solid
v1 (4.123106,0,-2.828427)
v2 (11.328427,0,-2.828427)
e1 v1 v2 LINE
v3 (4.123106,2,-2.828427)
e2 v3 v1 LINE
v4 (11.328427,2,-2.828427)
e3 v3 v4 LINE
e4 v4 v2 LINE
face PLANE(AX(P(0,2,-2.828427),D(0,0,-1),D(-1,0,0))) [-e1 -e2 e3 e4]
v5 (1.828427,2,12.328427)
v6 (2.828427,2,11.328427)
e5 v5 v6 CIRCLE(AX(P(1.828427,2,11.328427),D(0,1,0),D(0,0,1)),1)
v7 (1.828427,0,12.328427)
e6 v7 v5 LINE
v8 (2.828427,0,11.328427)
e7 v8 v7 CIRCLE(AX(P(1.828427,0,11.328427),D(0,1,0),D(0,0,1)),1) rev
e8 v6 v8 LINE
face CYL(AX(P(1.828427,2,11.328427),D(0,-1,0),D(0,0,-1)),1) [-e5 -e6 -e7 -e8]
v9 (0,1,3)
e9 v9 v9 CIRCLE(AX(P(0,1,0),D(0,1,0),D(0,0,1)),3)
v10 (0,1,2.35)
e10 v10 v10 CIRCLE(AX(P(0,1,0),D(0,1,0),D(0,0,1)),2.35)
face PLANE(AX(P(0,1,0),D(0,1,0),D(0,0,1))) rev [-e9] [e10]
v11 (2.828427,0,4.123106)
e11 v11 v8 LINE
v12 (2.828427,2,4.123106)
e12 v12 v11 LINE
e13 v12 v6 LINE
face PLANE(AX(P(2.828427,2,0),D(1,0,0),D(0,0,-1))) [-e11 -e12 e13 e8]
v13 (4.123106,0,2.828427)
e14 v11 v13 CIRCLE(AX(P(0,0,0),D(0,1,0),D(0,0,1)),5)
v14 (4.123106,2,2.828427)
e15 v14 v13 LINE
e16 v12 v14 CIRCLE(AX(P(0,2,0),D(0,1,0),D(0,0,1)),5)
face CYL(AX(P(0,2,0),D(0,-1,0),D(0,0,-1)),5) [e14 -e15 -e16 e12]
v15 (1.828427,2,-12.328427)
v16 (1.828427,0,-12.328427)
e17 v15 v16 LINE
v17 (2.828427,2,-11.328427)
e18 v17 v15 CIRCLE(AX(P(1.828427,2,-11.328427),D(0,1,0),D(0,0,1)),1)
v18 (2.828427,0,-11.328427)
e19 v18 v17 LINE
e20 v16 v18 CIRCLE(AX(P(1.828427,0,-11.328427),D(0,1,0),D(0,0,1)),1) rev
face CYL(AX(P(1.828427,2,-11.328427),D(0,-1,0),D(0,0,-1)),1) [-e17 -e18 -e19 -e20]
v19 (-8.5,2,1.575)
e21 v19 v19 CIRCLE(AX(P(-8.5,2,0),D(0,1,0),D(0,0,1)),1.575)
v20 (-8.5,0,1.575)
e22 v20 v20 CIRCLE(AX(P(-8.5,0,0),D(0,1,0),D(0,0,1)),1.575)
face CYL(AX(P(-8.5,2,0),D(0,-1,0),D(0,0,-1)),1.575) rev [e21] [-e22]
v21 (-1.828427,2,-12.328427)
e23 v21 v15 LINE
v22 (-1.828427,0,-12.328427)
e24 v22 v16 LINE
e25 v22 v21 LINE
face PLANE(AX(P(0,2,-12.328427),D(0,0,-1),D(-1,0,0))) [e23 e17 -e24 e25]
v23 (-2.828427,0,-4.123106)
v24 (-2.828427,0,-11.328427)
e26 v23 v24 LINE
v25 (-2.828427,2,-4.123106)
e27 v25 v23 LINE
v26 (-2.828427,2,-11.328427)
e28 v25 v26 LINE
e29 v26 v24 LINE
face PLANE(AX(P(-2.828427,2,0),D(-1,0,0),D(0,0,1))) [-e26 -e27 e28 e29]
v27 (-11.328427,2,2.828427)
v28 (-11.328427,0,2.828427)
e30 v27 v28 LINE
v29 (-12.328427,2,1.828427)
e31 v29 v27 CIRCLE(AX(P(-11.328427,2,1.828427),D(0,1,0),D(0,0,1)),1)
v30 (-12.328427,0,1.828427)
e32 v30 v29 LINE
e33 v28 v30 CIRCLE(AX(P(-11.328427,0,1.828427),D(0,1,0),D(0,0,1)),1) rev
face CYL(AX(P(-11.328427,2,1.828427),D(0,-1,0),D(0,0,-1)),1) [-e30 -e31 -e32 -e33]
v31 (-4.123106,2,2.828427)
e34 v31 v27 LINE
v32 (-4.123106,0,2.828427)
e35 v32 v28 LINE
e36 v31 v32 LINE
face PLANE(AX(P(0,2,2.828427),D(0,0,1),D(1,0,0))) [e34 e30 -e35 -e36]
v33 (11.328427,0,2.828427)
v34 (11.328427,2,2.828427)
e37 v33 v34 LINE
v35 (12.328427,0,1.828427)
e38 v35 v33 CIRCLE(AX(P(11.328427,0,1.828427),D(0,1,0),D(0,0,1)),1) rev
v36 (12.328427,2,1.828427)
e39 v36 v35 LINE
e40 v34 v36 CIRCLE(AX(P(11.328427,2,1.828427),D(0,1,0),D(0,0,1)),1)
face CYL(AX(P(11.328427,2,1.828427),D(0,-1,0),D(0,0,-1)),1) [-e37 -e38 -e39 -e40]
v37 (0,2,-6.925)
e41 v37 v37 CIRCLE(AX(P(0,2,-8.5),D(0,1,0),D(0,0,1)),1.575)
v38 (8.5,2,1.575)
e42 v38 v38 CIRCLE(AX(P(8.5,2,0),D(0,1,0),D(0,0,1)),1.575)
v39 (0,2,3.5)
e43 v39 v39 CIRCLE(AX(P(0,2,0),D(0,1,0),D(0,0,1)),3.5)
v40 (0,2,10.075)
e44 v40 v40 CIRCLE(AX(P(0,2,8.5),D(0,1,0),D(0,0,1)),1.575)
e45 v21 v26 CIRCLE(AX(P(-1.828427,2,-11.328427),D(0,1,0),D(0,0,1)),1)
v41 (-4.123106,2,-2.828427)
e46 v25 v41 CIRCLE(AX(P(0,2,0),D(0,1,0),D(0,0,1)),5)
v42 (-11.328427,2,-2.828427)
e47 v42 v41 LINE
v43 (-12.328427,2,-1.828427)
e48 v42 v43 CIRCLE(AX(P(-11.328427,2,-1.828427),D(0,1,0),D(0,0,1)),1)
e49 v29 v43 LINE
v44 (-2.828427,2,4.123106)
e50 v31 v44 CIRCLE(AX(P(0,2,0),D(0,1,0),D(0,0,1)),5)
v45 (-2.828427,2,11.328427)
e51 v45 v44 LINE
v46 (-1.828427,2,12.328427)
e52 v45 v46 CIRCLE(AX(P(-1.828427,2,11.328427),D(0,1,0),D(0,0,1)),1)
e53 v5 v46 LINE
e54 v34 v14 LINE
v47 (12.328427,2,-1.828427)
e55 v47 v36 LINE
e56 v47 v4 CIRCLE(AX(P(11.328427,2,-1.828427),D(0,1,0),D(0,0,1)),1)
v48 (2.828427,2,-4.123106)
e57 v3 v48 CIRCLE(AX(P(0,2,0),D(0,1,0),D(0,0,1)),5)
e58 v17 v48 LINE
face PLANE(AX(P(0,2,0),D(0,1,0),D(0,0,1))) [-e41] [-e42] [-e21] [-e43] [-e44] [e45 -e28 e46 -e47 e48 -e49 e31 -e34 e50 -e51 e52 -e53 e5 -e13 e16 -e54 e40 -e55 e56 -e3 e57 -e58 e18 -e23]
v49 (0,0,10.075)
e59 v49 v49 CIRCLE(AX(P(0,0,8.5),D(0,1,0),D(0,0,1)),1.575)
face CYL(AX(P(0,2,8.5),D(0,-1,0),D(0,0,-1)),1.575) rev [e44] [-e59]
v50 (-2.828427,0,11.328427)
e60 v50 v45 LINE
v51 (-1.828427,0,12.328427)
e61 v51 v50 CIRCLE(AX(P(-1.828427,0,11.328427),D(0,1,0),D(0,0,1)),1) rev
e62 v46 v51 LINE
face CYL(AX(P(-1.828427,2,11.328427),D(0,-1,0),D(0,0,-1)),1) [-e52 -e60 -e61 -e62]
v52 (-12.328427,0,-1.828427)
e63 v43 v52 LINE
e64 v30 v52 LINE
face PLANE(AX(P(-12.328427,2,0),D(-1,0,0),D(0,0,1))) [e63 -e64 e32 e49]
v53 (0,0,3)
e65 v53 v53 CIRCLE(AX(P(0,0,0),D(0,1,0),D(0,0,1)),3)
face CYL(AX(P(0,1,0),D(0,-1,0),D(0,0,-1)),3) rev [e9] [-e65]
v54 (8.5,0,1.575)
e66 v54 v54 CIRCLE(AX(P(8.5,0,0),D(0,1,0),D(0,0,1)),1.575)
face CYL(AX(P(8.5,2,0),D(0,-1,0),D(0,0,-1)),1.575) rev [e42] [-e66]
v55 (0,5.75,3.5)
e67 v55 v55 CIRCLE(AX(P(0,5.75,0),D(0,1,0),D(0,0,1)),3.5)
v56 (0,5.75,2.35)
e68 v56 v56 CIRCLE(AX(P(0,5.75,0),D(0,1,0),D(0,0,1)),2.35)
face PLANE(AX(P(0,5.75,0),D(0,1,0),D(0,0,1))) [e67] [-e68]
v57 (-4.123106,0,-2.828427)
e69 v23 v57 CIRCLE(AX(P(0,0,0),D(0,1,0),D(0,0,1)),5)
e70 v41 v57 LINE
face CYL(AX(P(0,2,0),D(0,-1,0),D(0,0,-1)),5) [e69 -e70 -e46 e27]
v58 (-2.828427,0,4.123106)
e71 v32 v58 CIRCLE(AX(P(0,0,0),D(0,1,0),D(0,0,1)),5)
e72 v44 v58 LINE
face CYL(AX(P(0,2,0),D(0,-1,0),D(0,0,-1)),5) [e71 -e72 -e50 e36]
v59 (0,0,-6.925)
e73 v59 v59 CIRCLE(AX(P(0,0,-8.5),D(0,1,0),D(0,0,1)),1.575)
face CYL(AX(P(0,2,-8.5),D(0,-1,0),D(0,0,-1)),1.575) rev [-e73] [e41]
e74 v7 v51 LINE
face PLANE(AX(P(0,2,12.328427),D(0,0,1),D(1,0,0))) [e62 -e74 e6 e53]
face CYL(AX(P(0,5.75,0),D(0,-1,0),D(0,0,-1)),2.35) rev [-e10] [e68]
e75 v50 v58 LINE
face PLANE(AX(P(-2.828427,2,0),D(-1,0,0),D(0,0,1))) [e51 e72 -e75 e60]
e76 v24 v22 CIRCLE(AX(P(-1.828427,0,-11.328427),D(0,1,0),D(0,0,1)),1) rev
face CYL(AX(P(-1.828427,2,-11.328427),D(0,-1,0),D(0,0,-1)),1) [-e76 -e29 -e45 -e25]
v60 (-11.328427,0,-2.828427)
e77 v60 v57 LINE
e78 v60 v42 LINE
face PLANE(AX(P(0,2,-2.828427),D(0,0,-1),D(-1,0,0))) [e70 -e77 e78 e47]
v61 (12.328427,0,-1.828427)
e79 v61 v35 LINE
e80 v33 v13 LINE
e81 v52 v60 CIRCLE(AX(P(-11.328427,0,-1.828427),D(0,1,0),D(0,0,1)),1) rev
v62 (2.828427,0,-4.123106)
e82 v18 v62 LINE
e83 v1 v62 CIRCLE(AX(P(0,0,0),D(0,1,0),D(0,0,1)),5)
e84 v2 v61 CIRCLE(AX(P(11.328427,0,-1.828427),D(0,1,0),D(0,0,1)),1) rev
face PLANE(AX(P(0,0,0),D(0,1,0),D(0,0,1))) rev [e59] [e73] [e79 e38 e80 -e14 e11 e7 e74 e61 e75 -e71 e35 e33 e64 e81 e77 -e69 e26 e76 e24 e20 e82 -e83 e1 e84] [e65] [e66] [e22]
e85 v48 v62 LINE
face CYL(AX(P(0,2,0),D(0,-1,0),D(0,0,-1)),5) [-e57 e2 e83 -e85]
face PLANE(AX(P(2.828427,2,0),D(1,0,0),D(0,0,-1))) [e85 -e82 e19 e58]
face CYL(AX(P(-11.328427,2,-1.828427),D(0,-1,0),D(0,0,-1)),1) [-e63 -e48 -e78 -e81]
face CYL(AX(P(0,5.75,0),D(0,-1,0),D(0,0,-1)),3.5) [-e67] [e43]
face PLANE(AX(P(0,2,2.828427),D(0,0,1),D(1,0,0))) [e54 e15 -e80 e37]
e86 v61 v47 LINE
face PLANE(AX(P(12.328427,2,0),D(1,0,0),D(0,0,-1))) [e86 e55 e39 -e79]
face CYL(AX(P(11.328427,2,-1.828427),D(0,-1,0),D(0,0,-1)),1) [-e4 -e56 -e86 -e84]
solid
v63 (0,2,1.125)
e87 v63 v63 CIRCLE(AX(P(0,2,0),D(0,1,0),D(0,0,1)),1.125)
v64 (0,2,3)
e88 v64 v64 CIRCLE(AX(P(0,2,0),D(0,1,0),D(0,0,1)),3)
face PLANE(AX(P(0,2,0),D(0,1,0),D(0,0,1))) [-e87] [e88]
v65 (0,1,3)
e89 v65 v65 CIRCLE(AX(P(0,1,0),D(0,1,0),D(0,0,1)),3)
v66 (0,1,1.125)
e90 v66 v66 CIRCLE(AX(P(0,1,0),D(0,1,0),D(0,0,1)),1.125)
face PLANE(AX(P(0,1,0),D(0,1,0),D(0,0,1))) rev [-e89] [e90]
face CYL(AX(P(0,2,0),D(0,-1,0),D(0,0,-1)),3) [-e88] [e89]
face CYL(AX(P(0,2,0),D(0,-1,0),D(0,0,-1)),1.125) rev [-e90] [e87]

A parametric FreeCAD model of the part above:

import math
import FreeCAD as App
import Part
import Sketcher
from FreeCAD import Vector


def edges_at(feature, points):
    """Names of the edges that pass closest to the given points."""
    edges = feature.Shape.Edges
    near = lambda p: min(range(len(edges)), key=lambda i: edges[i].distToShape(Part.Vertex(*p))[0])
    return sorted({f"Edge{near(p) + 1}" for p in points})

doc = App.newDocument("Part")
body = doc.addObject("PartDesign::Body", "Body")

# Sketch on XZ plane
sketch1 = doc.addObject("Sketcher::SketchObject", "Sketch")
body.addObject(sketch1)
sketch1.AttachmentSupport = (doc.XZ_Plane, [""])
sketch1.MapMode = "FlatFace"
sketch1.addGeometry(Part.ArcOfCircle(Part.Circle(Vector(0, 0, 0), Vector(0, 0, 1), 5), math.radians(-146), math.radians(-124)), False)
sketch1.addGeometry(Part.LineSegment(Vector(-4.1, -2.8, 0), Vector(-12.3, -2.8, 0)), False)
sketch1.addGeometry(Part.LineSegment(Vector(-12.3, -2.8, 0), Vector(-12.3, 2.8, 0)), False)
sketch1.addGeometry(Part.LineSegment(Vector(-12.3, 2.8, 0), Vector(-4.1, 2.8, 0)), False)
sketch1.addGeometry(Part.ArcOfCircle(Part.Circle(Vector(0, 0, 0), Vector(0, 0, 1), 5), math.radians(124), math.radians(146)), False)
sketch1.addGeometry(Part.LineSegment(Vector(-2.8, 4.1, 0), Vector(-2.8, 12.3, 0)), False)
sketch1.addGeometry(Part.LineSegment(Vector(-2.8, 12.3, 0), Vector(2.8, 12.3, 0)), False)
sketch1.addGeometry(Part.LineSegment(Vector(2.8, 12.3, 0), Vector(2.8, 4.1, 0)), False)
sketch1.addGeometry(Part.ArcOfCircle(Part.Circle(Vector(0, 0, 0), Vector(0, 0, 1), 5), math.radians(34), math.radians(56)), False)
sketch1.addGeometry(Part.LineSegment(Vector(4.1, 2.8, 0), Vector(12.3, 2.8, 0)), False)
sketch1.addGeometry(Part.LineSegment(Vector(12.3, 2.8, 0), Vector(12.3, -2.8, 0)), False)
sketch1.addGeometry(Part.LineSegment(Vector(12.3, -2.8, 0), Vector(4.1, -2.8, 0)), False)
sketch1.addGeometry(Part.ArcOfCircle(Part.Circle(Vector(0, 0, 0), Vector(0, 0, 1), 5), math.radians(-56), math.radians(-34)), False)
sketch1.addGeometry(Part.LineSegment(Vector(2.8, -4.1, 0), Vector(2.8, -12.3, 0)), False)
sketch1.addGeometry(Part.LineSegment(Vector(2.8, -12.3, 0), Vector(-2.8, -12.3, 0)), False)
sketch1.addGeometry(Part.LineSegment(Vector(-2.8, -12.3, 0), Vector(-2.8, -4.1, 0)), False)
sketch1.addGeometry(Part.Circle(Vector(0, 8.5, 0), Vector(0, 0, 1), 1.6), False)
sketch1.addGeometry(Part.Circle(Vector(-8.5, 0, 0), Vector(0, 0, 1), 1.6), False)
sketch1.addGeometry(Part.Circle(Vector(0, 0, 0), Vector(0, 0, 1), 3.5), False)
sketch1.addGeometry(Part.Circle(Vector(8.5, 0, 0), Vector(0, 0, 1), 1.6), False)
sketch1.addGeometry(Part.Circle(Vector(0, -8.5, 0), Vector(0, 0, 1), 1.6), False)
sketch1.addConstraint(Sketcher.Constraint("Coincident", 0, 1, 1, 1))
sketch1.addConstraint(Sketcher.Constraint("Coincident", 1, 2, 2, 1))
sketch1.addConstraint(Sketcher.Constraint("Coincident", 2, 2, 3, 1))
sketch1.addConstraint(Sketcher.Constraint("Coincident", 3, 2, 4, 2))
sketch1.addConstraint(Sketcher.Constraint("Coincident", 4, 1, 5, 1))
sketch1.addConstraint(Sketcher.Constraint("Coincident", 5, 2, 6, 1))
sketch1.addConstraint(Sketcher.Constraint("Coincident", 6, 2, 7, 1))
sketch1.addConstraint(Sketcher.Constraint("Coincident", 7, 2, 8, 2))
sketch1.addConstraint(Sketcher.Constraint("Coincident", 8, 1, 9, 1))
sketch1.addConstraint(Sketcher.Constraint("Coincident", 9, 2, 10, 1))
sketch1.addConstraint(Sketcher.Constraint("Coincident", 10, 2, 11, 1))
sketch1.addConstraint(Sketcher.Constraint("Coincident", 11, 2, 12, 2))
sketch1.addConstraint(Sketcher.Constraint("Coincident", 12, 1, 13, 1))
sketch1.addConstraint(Sketcher.Constraint("Coincident", 13, 2, 14, 1))
sketch1.addConstraint(Sketcher.Constraint("Coincident", 14, 2, 15, 1))
sketch1.addConstraint(Sketcher.Constraint("Coincident", 15, 2, 0, 2))
sketch1.addConstraint(Sketcher.Constraint("Horizontal", 1))
sketch1.addConstraint(Sketcher.Constraint("Vertical", 2))
sketch1.addConstraint(Sketcher.Constraint("Horizontal", 3))
sketch1.addConstraint(Sketcher.Constraint("Vertical", 5))
sketch1.addConstraint(Sketcher.Constraint("Horizontal", 6))
sketch1.addConstraint(Sketcher.Constraint("Vertical", 7))
sketch1.addConstraint(Sketcher.Constraint("Horizontal", 9))
sketch1.addConstraint(Sketcher.Constraint("Vertical", 10))
sketch1.addConstraint(Sketcher.Constraint("Horizontal", 11))
sketch1.addConstraint(Sketcher.Constraint("Vertical", 13))
sketch1.addConstraint(Sketcher.Constraint("Horizontal", 14))
sketch1.addConstraint(Sketcher.Constraint("Vertical", 15))
sketch1.addConstraint(Sketcher.Constraint("Coincident", 0, 3, -1, 1))
sketch1.addConstraint(Sketcher.Constraint("Coincident", 4, 3, -1, 1))
sketch1.addConstraint(Sketcher.Constraint("Coincident", 8, 3, -1, 1))
sketch1.addConstraint(Sketcher.Constraint("Coincident", 12, 3, -1, 1))
sketch1.addConstraint(Sketcher.Constraint("Coincident", 18, 3, -1, 1))
sketch1.addConstraint(Sketcher.Constraint("Equal", 0, 4))
sketch1.addConstraint(Sketcher.Constraint("Equal", 4, 8))
sketch1.addConstraint(Sketcher.Constraint("Equal", 8, 12))
sketch1.addConstraint(Sketcher.Constraint("Equal", 16, 17))
sketch1.addConstraint(Sketcher.Constraint("Equal", 17, 19))
sketch1.addConstraint(Sketcher.Constraint("Equal", 19, 20))
sketch1.addConstraint(Sketcher.Constraint("Symmetric", 17, 3, 19, 3, -1, 1))
sketch1.addConstraint(Sketcher.Constraint("Symmetric", 16, 3, 20, 3, -1, 1))
sketch1.addConstraint(Sketcher.Constraint("Symmetric", 1, 2, 9, 2, -1, 1))
sketch1.addConstraint(Sketcher.Constraint("Symmetric", 5, 2, 13, 2, -1, 1))
sketch1.addConstraint(Sketcher.Constraint("PointOnObject", 16, 3, -2))
sketch1.addConstraint(Sketcher.Constraint("PointOnObject", 17, 3, -1))
sketch1.addConstraint(Sketcher.Constraint("Horizontal", 4, 1, 7, 2))
sketch1.addConstraint(Sketcher.Constraint("Horizontal", 3, 2, 8, 1))
sketch1.addConstraint(Sketcher.Constraint("Horizontal", 1, 2, 10, 2))
sketch1.addConstraint(Sketcher.Constraint("Horizontal", 12, 1, 15, 2))
sketch1.addConstraint(Sketcher.Constraint("Equal", 14, 2))
sketch1.addConstraint(Sketcher.Constraint("Equal", 11, 5))
sketch1.addConstraint(Sketcher.Constraint("Diameter", 18, 7.0))
sketch1.addConstraint(Sketcher.Constraint("Radius", 0, 5.0))
sketch1.addConstraint(Sketcher.Constraint("Diameter", 16, 3.15))
sketch1.addConstraint(Sketcher.Constraint("DistanceY", -1, 1, 16, 3, 8.5))
sketch1.addConstraint(Sketcher.Constraint("DistanceX", 17, 3, -1, 1, 8.5))
sketch1.addConstraint(Sketcher.Constraint("DistanceY", 3, 2, 5, 2, 9.5))
sketch1.addConstraint(Sketcher.Constraint("DistanceX", 1, 2, 1, 1, 8.205321))
pad1 = doc.addObject("PartDesign::Pad", "Pad")
body.addObject(pad1)
pad1.Profile = sketch1
pad1.Length = 2
pad1.Reversed = True

# Sketch on XZ plane
sketch2 = doc.addObject("Sketcher::SketchObject", "Sketch001")
body.addObject(sketch2)
sketch2.AttachmentSupport = (doc.XZ_Plane, [""])
sketch2.MapMode = "FlatFace"
sketch2.addGeometry(Part.Circle(Vector(0, 0, 0), Vector(0, 0, 1), 3.5), False)
sketch2.addGeometry(Part.Circle(Vector(0, 0, 0), Vector(0, 0, 1), 2.4), False)
sketch2.addConstraint(Sketcher.Constraint("Coincident", 0, 3, -1, 1))
sketch2.addConstraint(Sketcher.Constraint("Coincident", 1, 3, -1, 1))
sketch2.addConstraint(Sketcher.Constraint("Diameter", 0, 7.0))
sketch2.addConstraint(Sketcher.Constraint("Diameter", 1, 4.7))
pad2 = doc.addObject("PartDesign::Pad", "Pad001")
body.addObject(pad2)
pad2.Profile = sketch2
pad2.Length = 5.75
pad2.Reversed = True
doc.recompute()

fillet = doc.addObject("PartDesign::Fillet", "Fillet")
body.addObject(fillet)
fillet.Base = (pad2, edges_at(pad2, [
    (-2.828, 1, -12.328),
    (2.828, 1, -12.328),
    (12.328, 1, -2.828),
    (12.328, 1, 2.828),
    (2.828, 1, 12.328),
    (-2.828, 1, 12.328),
    (-12.328, 1, 2.828),
    (-12.328, 1, -2.828),
]))
fillet.Radius = 1
body2 = doc.addObject("PartDesign::Body", "Body001")

# Sketch on XZ plane
sketch3 = doc.addObject("Sketcher::SketchObject", "Sketch002")
body2.addObject(sketch3)
sketch3.AttachmentSupport = (doc.getObject("XZ_Plane001"), [""])
sketch3.MapMode = "FlatFace"
sketch3.addGeometry(Part.Circle(Vector(0, 0, 0), Vector(0, 0, 1), 3), False)
sketch3.addGeometry(Part.Circle(Vector(0, 0, 0), Vector(0, 0, 1), 1.1), False)
sketch3.addConstraint(Sketcher.Constraint("Coincident", 0, 3, -1, 1))
sketch3.addConstraint(Sketcher.Constraint("Coincident", 1, 3, -1, 1))
sketch3.addConstraint(Sketcher.Constraint("Diameter", 0, 6.0))
sketch3.addConstraint(Sketcher.Constraint("Diameter", 1, 2.25))
pad3 = doc.addObject("PartDesign::Pad", "Pad002")
body2.addObject(pad3)
pad3.Profile = sketch3
pad3.Length = 2
pad3.Reversed = True
body3 = doc.addObject("PartDesign::Body", "Body002")

# Sketch on XZ plane
sketch4 = doc.addObject("Sketcher::SketchObject", "Sketch003")
body3.addObject(sketch4)
sketch4.AttachmentSupport = (doc.getObject("XZ_Plane002"), [""])
sketch4.MapMode = "FlatFace"
sketch4.addGeometry(Part.ArcOfCircle(Part.Circle(Vector(0, 0, 0), Vector(0, 0, 1), 3), math.radians(-90), math.radians(-45)), False)
sketch4.addGeometry(Part.ArcOfCircle(Part.Circle(Vector(0, 0, 0), Vector(0, 0, 1), 3), math.radians(-135), math.radians(-90)), False)
sketch4.addGeometry(Part.ArcOfCircle(Part.Circle(Vector(0, 0, 0), Vector(0, 0, 1), 3), math.radians(135), math.radians(225)), False)
sketch4.addGeometry(Part.ArcOfCircle(Part.Circle(Vector(0, 0, 0), Vector(0, 0, 1), 3), math.radians(45), math.radians(135)), False)
sketch4.addGeometry(Part.ArcOfCircle(Part.Circle(Vector(0, 0, 0), Vector(0, 0, 1), 3), math.radians(0), math.radians(45)), False)
sketch4.addGeometry(Part.ArcOfCircle(Part.Circle(Vector(0, 0, 0), Vector(0, 0, 1), 3), math.radians(-45), math.radians(0)), False)
sketch4.addGeometry(Part.ArcOfCircle(Part.Circle(Vector(0, 0, 0), Vector(0, 0, 1), 1.1), math.radians(-135), math.radians(-90)), False)
sketch4.addGeometry(Part.ArcOfCircle(Part.Circle(Vector(0, 0, 0), Vector(0, 0, 1), 1.1), math.radians(-90), math.radians(-45)), False)
sketch4.addGeometry(Part.ArcOfCircle(Part.Circle(Vector(0, 0, 0), Vector(0, 0, 1), 1.1), math.radians(-45), math.radians(0)), False)
sketch4.addGeometry(Part.ArcOfCircle(Part.Circle(Vector(0, 0, 0), Vector(0, 0, 1), 1.1), math.radians(0), math.radians(45)), False)
sketch4.addGeometry(Part.ArcOfCircle(Part.Circle(Vector(0, 0, 0), Vector(0, 0, 1), 1.1), math.radians(45), math.radians(135)), False)
sketch4.addGeometry(Part.ArcOfCircle(Part.Circle(Vector(0, 0, 0), Vector(0, 0, 1), 1.1), math.radians(135), math.radians(225)), False)
sketch4.addConstraint(Sketcher.Constraint("Tangent", 0, 1, 1, 2))
sketch4.addConstraint(Sketcher.Constraint("Tangent", 1, 1, 2, 2))
sketch4.addConstraint(Sketcher.Constraint("Tangent", 2, 1, 3, 2))
sketch4.addConstraint(Sketcher.Constraint("Tangent", 3, 1, 4, 2))
sketch4.addConstraint(Sketcher.Constraint("Tangent", 4, 1, 5, 2))
sketch4.addConstraint(Sketcher.Constraint("Tangent", 5, 1, 0, 2))
sketch4.addConstraint(Sketcher.Constraint("Tangent", 6, 2, 7, 1))
sketch4.addConstraint(Sketcher.Constraint("Tangent", 7, 2, 8, 1))
sketch4.addConstraint(Sketcher.Constraint("Tangent", 8, 2, 9, 1))
sketch4.addConstraint(Sketcher.Constraint("Tangent", 9, 2, 10, 1))
sketch4.addConstraint(Sketcher.Constraint("Tangent", 10, 2, 11, 1))
sketch4.addConstraint(Sketcher.Constraint("Tangent", 11, 2, 6, 1))
sketch4.addConstraint(Sketcher.Constraint("Coincident", 0, 3, -1, 1))
sketch4.addConstraint(Sketcher.Constraint("Coincident", 2, 3, -1, 1))
sketch4.addConstraint(Sketcher.Constraint("Coincident", 6, 3, -1, 1))
sketch4.addConstraint(Sketcher.Constraint("Coincident", 8, 3, -1, 1))
sketch4.addConstraint(Sketcher.Constraint("Equal", 2, 3))
sketch4.addConstraint(Sketcher.Constraint("Equal", 8, 9))
sketch4.addConstraint(Sketcher.Constraint("PointOnObject", 0, 1, -2))
sketch4.addConstraint(Sketcher.Constraint("PointOnObject", 4, 1, -1))
sketch4.addConstraint(Sketcher.Constraint("PointOnObject", 6, 2, -2))
sketch4.addConstraint(Sketcher.Constraint("PointOnObject", 8, 2, -1))
sketch4.addConstraint(Sketcher.Constraint("Horizontal", 2, 1, 3, 1))
sketch4.addConstraint(Sketcher.Constraint("Horizontal", 1, 1, 5, 1))
sketch4.addConstraint(Sketcher.Constraint("Horizontal", 9, 2, 10, 2))
sketch4.addConstraint(Sketcher.Constraint("Horizontal", 7, 2, 11, 2))
sketch4.addConstraint(Sketcher.Constraint("Vertical", 1, 1, 2, 1))
sketch4.addConstraint(Sketcher.Constraint("Vertical", 7, 2, 9, 2))
sketch4.addConstraint(Sketcher.Constraint("Radius", 0, 3.0))
sketch4.addConstraint(Sketcher.Constraint("Radius", 6, 1.125))
sketch4.addConstraint(Sketcher.Constraint("DistanceX", 1, 1, -1, 1, 2.12132))
sketch4.addConstraint(Sketcher.Constraint("DistanceX", -1, 1, 7, 2, 0.795495))
pad4 = doc.addObject("PartDesign::Pad", "Pad003")
body3.addObject(pad4)
pad4.Profile = sketch4
pad4.Length = 1
pad4.Reversed = True
doc.recompute()

body4 = doc.addObject("PartDesign::Body", "Body003")
body4.BaseFeature = body3
boolean = doc.addObject("PartDesign::Boolean", "Boolean")
body.addObject(boolean)
boolean.Type = "Cut"
boolean.addObjects([body4])
doc.recompute()

boolean2 = doc.addObject("PartDesign::Boolean", "Boolean001")
body2.addObject(boolean2)
boolean2.Type = "Cut"
boolean2.addObjects([body3])

doc.recompute()
